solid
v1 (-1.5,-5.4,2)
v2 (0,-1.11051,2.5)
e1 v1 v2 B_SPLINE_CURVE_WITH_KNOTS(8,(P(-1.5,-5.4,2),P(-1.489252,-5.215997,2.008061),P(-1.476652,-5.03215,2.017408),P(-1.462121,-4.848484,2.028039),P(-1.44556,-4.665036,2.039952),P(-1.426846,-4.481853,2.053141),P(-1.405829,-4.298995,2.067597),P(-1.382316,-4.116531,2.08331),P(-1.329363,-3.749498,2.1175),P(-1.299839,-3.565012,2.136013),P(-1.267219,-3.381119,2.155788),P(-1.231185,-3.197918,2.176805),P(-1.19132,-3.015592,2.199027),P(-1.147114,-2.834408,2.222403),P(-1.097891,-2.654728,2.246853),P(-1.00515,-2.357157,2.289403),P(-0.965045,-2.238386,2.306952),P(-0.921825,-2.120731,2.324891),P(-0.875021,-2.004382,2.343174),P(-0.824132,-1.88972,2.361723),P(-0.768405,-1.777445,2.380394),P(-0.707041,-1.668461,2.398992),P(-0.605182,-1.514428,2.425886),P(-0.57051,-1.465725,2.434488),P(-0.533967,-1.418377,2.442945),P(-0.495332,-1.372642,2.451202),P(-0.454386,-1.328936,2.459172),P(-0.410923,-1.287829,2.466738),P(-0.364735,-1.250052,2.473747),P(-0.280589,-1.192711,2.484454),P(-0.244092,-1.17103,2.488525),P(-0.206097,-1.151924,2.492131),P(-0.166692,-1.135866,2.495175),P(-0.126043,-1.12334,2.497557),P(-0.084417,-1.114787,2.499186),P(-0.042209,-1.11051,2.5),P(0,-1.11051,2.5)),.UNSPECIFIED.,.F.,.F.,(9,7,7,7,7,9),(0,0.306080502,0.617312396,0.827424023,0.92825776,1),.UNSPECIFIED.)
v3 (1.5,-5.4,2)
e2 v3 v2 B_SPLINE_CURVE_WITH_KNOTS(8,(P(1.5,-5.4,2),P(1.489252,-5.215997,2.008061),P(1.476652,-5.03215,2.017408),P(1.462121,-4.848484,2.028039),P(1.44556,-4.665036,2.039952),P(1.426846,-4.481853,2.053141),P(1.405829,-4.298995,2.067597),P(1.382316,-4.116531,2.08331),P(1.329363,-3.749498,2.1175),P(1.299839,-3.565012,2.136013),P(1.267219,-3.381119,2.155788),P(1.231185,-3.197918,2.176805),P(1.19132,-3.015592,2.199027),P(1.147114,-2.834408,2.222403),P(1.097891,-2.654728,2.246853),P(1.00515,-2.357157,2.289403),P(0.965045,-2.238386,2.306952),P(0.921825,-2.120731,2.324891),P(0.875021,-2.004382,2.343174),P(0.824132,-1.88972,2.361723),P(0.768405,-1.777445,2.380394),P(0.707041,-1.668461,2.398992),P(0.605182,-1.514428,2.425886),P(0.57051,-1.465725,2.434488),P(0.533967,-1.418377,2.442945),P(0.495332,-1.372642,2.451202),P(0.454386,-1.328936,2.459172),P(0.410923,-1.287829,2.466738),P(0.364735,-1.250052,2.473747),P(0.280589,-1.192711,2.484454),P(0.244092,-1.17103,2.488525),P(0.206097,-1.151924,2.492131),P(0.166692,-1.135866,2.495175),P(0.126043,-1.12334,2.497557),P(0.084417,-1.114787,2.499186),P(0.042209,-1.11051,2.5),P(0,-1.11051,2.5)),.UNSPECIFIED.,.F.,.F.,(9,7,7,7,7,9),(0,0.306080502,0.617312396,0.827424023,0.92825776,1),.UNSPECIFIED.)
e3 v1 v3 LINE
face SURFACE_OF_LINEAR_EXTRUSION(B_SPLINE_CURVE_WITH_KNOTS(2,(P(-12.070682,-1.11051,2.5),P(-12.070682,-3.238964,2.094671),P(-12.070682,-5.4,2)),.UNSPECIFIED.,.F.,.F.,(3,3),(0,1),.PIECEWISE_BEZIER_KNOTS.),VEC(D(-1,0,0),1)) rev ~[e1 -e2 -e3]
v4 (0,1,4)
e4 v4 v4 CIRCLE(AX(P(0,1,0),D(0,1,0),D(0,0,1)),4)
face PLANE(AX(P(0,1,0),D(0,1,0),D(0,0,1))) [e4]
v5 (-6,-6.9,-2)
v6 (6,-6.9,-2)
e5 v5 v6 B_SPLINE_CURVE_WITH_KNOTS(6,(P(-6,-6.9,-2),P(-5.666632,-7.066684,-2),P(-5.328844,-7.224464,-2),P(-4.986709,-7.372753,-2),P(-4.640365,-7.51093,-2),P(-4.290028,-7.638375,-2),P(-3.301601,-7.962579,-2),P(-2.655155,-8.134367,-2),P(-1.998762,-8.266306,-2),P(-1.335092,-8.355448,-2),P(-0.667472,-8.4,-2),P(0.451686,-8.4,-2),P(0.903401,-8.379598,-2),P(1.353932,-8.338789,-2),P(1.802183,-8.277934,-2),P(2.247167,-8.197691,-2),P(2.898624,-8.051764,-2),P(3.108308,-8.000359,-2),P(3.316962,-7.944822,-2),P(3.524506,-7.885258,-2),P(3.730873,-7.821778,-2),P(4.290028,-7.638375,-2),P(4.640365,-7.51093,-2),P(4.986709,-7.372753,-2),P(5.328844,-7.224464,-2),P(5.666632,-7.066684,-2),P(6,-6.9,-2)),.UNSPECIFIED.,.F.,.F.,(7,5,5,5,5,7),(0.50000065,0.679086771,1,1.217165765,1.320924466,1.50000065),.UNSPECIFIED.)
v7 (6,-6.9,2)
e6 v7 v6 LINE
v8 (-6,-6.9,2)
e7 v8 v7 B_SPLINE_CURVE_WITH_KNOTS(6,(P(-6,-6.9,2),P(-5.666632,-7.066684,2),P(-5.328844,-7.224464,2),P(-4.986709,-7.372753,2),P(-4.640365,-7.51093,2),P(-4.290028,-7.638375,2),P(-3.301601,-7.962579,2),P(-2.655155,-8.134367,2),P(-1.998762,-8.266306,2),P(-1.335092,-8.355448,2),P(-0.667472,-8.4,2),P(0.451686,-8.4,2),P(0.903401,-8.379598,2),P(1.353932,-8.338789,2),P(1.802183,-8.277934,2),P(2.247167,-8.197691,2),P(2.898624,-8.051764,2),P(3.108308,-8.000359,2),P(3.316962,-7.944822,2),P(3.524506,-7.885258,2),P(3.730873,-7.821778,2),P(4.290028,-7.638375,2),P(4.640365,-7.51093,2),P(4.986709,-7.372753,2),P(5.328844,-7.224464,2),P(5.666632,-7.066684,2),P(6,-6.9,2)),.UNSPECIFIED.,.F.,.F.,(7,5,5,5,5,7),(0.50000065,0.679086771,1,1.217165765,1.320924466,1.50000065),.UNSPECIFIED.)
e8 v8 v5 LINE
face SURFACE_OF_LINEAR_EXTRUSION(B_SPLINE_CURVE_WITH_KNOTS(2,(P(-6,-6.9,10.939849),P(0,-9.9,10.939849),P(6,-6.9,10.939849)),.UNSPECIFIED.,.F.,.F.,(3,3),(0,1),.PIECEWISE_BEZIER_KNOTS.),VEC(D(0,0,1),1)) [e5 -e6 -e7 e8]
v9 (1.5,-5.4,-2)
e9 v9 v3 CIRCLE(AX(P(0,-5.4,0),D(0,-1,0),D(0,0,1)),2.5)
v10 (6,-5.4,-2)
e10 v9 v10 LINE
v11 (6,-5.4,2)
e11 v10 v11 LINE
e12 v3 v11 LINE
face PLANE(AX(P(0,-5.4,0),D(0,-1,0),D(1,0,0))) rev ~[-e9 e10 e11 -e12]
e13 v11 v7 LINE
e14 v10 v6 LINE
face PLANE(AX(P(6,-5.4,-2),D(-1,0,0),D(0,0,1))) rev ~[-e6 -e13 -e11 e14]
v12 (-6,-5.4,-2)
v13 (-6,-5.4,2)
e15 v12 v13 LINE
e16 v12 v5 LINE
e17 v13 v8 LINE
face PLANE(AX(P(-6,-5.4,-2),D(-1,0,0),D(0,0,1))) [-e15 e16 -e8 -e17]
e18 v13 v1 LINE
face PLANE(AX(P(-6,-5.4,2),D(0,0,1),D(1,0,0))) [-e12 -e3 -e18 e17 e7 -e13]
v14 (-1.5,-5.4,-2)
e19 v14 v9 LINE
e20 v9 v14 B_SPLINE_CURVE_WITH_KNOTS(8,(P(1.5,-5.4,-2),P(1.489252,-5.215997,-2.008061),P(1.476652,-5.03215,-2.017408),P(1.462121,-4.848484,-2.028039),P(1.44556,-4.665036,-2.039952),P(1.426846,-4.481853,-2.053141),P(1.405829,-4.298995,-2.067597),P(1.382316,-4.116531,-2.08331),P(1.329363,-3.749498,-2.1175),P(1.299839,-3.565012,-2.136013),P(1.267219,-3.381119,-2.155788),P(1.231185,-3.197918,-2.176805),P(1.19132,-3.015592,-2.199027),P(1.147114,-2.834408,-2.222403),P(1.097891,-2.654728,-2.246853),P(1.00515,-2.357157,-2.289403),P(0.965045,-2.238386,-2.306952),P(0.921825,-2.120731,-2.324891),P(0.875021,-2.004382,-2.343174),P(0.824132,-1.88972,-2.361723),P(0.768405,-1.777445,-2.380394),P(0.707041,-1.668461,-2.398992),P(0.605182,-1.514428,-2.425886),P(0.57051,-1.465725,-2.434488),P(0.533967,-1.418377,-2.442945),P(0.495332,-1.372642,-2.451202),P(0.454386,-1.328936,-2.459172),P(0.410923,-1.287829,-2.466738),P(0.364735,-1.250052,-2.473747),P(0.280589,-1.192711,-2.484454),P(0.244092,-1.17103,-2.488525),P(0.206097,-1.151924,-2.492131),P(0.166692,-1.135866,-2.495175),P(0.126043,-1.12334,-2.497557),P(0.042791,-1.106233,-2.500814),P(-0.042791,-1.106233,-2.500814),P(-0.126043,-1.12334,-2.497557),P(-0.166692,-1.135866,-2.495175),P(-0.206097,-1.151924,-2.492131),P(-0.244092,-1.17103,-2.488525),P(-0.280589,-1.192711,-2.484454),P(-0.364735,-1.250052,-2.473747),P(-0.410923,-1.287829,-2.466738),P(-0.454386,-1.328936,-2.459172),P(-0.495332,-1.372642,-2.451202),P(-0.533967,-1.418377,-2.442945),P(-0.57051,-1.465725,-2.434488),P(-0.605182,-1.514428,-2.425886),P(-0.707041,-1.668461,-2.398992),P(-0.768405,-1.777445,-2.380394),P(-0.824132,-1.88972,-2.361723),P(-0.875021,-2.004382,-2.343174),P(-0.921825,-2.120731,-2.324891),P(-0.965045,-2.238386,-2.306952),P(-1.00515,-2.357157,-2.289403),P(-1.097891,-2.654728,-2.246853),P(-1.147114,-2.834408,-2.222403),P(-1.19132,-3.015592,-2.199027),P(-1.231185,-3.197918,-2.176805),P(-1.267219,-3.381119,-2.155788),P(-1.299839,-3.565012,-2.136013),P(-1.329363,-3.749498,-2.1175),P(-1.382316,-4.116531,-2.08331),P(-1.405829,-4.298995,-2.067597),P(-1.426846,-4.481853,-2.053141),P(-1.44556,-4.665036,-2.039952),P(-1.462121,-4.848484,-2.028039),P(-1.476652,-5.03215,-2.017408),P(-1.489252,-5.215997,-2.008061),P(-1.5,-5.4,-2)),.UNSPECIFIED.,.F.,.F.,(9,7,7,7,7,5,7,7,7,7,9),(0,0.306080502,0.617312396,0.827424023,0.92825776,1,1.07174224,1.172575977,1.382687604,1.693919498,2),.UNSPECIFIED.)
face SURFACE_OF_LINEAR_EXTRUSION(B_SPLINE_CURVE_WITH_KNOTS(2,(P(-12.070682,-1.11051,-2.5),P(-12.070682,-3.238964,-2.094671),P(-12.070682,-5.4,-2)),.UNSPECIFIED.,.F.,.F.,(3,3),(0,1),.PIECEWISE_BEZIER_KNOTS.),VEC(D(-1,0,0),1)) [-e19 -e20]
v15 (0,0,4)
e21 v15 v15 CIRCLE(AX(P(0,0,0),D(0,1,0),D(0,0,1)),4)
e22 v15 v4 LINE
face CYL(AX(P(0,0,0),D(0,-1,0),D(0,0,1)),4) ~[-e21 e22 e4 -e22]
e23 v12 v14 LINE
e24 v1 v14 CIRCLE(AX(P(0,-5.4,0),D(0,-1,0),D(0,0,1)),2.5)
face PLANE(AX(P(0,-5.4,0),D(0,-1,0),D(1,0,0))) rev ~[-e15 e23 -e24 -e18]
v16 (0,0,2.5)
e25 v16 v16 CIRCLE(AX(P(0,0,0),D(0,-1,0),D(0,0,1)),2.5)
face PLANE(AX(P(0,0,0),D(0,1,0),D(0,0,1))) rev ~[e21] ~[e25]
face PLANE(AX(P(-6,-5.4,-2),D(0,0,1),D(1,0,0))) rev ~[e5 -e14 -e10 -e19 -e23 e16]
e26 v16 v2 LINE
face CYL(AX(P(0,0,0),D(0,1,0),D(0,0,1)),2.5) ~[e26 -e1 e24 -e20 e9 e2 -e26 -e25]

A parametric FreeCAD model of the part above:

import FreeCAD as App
import Part
import Sketcher
from FreeCAD import Vector

doc = App.newDocument("Part")
body = doc.addObject("PartDesign::Body", "Body")

# Sketch on XZ plane
sketch1 = body.newObject("Sketcher::SketchObject", "Sketch")
sketch1.AttachmentSupport = (doc.getObject("XZ_Plane"), [""])
sketch1.MapMode = "FlatFace"
sketch1.addGeometry(Part.Circle(Vector(0, 0, 0), Vector(0, 0, 1), 4), False)
sketch1.addConstraint([
    Sketcher.Constraint("Coincident", 0, 3, -1, 1),
    Sketcher.Constraint("Diameter", 0, 8.0),
])
pad1 = body.newObject("PartDesign::Pad", "Pad")
pad1.Profile = sketch1
pad1.Length = 1
pad1.Reversed = True

# Sketch on XZ plane
sketch2 = body.newObject("Sketcher::SketchObject", "Sketch001")
sketch2.AttachmentSupport = (doc.getObject("XZ_Plane"), [""])
sketch2.MapMode = "FlatFace"
sketch2.addGeometry(Part.Circle(Vector(0, 0, 0), Vector(0, 0, 1), 2.5), False)
sketch2.addConstraint([
    Sketcher.Constraint("Coincident", 0, 3, -1, 1),
    Sketcher.Constraint("Diameter", 0, 5.0),
])
pad2 = body.newObject("PartDesign::Pad", "Pad001")
pad2.Profile = sketch2
pad2.Length = 5.4

# Sketch on XZ plane
sketch3 = body.newObject("Sketcher::SketchObject", "Sketch002")
sketch3.AttachmentSupport = (doc.getObject("XZ_Plane"), [""])
sketch3.MapMode = "FlatFace"
sketch3.AttachmentOffset = App.Placement(Vector(0, 0, 5.4), App.Rotation())
sketch3.addGeometry([
    Part.LineSegment(Vector(-6, 2, 0), Vector(-6, -2, 0)),
    Part.LineSegment(Vector(-6, -2, 0), Vector(6, -2, 0)),
    Part.LineSegment(Vector(6, -2, 0), Vector(6, 2, 0)),
    Part.LineSegment(Vector(6, 2, 0), Vector(-6, 2, 0)),
], False)
sketch3.addConstraint([
    Sketcher.Constraint("Coincident", 0, 2, 1, 1),
    Sketcher.Constraint("Coincident", 1, 2, 2, 1),
    Sketcher.Constraint("Coincident", 2, 2, 3, 1),
    Sketcher.Constraint("Coincident", 3, 2, 0, 1),
    Sketcher.Constraint("Vertical", 0),
    Sketcher.Constraint("Horizontal", 1),
    Sketcher.Constraint("Vertical", 2),
    Sketcher.Constraint("Horizontal", 3),
    Sketcher.Constraint("Symmetric", 0, 2, 2, 2, -1, 1),
    Sketcher.Constraint("DistanceX", 1, 1, 1, 2, 12.0),
    Sketcher.Constraint("DistanceY", 0, 2, 0, 1, 4.0),
])
pad3 = body.newObject("PartDesign::Pad", "Pad002")
pad3.Profile = sketch3
pad3.Length = 3

# Sketch on XY plane
sketch4 = body.newObject("Sketcher::SketchObject", "Sketch003")
sketch4.AttachmentSupport = (doc.getObject("XY_Plane"), [""])
sketch4.MapMode = "FlatFace"
sketch4.AttachmentOffset = App.Placement(Vector(0, 0, -2), App.Rotation())
sketch4.addGeometry([
    Part.LineSegment(Vector(6, -6.9, 0), Vector(6.927803, -6.9, 0)),  # 0
    Part.LineSegment(Vector(6.927803, -6.9, 0), Vector(6.927803, -9.790233, 0)),  # 1
    Part.LineSegment(Vector(6.927803, -9.790233, 0), Vector(-7.497211, -9.790233, 0)),  # 2
    Part.LineSegment(Vector(-7.497211, -9.790233, 0), Vector(-7.497211, -6.841739, 0)),  # 3
    Part.LineSegment(Vector(-7.497211, -6.841739, 0), Vector(-6, -6.9, 0)),  # 4
    Part.BSplineCurve([Vector(-6, -6.9, 0), Vector(0, -9.9, 0), Vector(6, -6.9, 0)], [3, 3], [0, 1], False, 2, [1, 1, 1], False),  # 5
], False)
sketch4.addConstraint([
    Sketcher.Constraint("Block", 5),
    Sketcher.Constraint("Coincident", 0, 2, 1, 1),
    Sketcher.Constraint("Coincident", 1, 2, 2, 1),
    Sketcher.Constraint("Coincident", 2, 2, 3, 1),
    Sketcher.Constraint("Coincident", 3, 2, 4, 1),
    Sketcher.Constraint("Coincident", 4, 2, 5, 1),
    Sketcher.Constraint("Coincident", 5, 2, 0, 1),
    Sketcher.Constraint("Horizontal", 0),
    Sketcher.Constraint("Vertical", 1),
    Sketcher.Constraint("Horizontal", 2),
    Sketcher.Constraint("Vertical", 3),
    Sketcher.Constraint("DistanceX", 0, 1, 0, 2, 0.927803),
    Sketcher.Constraint("DistanceX", 2, 2, 2, 1, 14.425013),
    Sketcher.Constraint("DistanceY", 1, 2, 1, 1, 2.890233),
    Sketcher.Constraint("DistanceY", 3, 1, 3, 2, 2.948494),
])
pocket1 = body.newObject("PartDesign::Pocket", "Pocket")
pocket1.Profile = sketch4
pocket1.Type = "ThroughAll"
pocket1.Midplane = True

# Sketch on YZ plane
sketch5 = body.newObject("Sketcher::SketchObject", "Sketch004")
sketch5.AttachmentSupport = (doc.getObject("YZ_Plane"), [""])
sketch5.MapMode = "FlatFace"
sketch5.addGeometry([
    Part.LineSegment(Vector(-1.11051, -3.286969, 0), Vector(-1.11051, -2.5, 0)),  # 0
    Part.BSplineCurve([Vector(-1.11051, -2.5, 0), Vector(-3.238964, -2.094671, 0), Vector(-5.4, -2, 0)], [3, 3], [0, 1], False, 2, [1, 1, 1], False),  # 1
    Part.LineSegment(Vector(-5.4, -2, 0), Vector(-6.28949, -3.286969, 0)),  # 2
    Part.LineSegment(Vector(-6.28949, -3.286969, 0), Vector(-1.11051, -3.286969, 0)),  # 3
    Part.LineSegment(Vector(-6.28949, 3.286969, 0), Vector(-5.4, 2, 0)),  # 4
    Part.BSplineCurve([Vector(-1.11051, 2.5, 0), Vector(-3.238964, 2.094671, 0), Vector(-5.4, 2, 0)], [3, 3], [0, 1], False, 2, [1, 1, 1], False),  # 5
    Part.LineSegment(Vector(-1.11051, 2.5, 0), Vector(-1.11051, 3.286969, 0)),  # 6
    Part.LineSegment(Vector(-1.11051, 3.286969, 0), Vector(-6.28949, 3.286969, 0)),  # 7
], False)
sketch5.addConstraint([
    Sketcher.Constraint("Block", 1),
    Sketcher.Constraint("Block", 5),
    Sketcher.Constraint("Coincident", 0, 2, 1, 1),
    Sketcher.Constraint("Coincident", 1, 2, 2, 1),
    Sketcher.Constraint("Coincident", 2, 2, 3, 1),
    Sketcher.Constraint("Coincident", 3, 2, 0, 1),
    Sketcher.Constraint("Coincident", 4, 2, 5, 2),
    Sketcher.Constraint("Coincident", 5, 1, 6, 1),
    Sketcher.Constraint("Coincident", 6, 2, 7, 1),
    Sketcher.Constraint("Coincident", 7, 2, 4, 1),
    Sketcher.Constraint("Vertical", 0),
    Sketcher.Constraint("Horizontal", 3),
    Sketcher.Constraint("Vertical", 6),
    Sketcher.Constraint("Horizontal", 7),
    Sketcher.Constraint("Symmetric", 2, 2, 7, 2, -1),
    Sketcher.Constraint("DistanceX", 3, 1, 3, 2, 5.178981),
    Sketcher.Constraint("DistanceY", 0, 1, 0, 2, 0.786969),
])
pocket2 = body.newObject("PartDesign::Pocket", "Pocket001")
pocket2.Profile = sketch5
pocket2.Type = "ThroughAll"
pocket2.Midplane = True

doc.recompute()
